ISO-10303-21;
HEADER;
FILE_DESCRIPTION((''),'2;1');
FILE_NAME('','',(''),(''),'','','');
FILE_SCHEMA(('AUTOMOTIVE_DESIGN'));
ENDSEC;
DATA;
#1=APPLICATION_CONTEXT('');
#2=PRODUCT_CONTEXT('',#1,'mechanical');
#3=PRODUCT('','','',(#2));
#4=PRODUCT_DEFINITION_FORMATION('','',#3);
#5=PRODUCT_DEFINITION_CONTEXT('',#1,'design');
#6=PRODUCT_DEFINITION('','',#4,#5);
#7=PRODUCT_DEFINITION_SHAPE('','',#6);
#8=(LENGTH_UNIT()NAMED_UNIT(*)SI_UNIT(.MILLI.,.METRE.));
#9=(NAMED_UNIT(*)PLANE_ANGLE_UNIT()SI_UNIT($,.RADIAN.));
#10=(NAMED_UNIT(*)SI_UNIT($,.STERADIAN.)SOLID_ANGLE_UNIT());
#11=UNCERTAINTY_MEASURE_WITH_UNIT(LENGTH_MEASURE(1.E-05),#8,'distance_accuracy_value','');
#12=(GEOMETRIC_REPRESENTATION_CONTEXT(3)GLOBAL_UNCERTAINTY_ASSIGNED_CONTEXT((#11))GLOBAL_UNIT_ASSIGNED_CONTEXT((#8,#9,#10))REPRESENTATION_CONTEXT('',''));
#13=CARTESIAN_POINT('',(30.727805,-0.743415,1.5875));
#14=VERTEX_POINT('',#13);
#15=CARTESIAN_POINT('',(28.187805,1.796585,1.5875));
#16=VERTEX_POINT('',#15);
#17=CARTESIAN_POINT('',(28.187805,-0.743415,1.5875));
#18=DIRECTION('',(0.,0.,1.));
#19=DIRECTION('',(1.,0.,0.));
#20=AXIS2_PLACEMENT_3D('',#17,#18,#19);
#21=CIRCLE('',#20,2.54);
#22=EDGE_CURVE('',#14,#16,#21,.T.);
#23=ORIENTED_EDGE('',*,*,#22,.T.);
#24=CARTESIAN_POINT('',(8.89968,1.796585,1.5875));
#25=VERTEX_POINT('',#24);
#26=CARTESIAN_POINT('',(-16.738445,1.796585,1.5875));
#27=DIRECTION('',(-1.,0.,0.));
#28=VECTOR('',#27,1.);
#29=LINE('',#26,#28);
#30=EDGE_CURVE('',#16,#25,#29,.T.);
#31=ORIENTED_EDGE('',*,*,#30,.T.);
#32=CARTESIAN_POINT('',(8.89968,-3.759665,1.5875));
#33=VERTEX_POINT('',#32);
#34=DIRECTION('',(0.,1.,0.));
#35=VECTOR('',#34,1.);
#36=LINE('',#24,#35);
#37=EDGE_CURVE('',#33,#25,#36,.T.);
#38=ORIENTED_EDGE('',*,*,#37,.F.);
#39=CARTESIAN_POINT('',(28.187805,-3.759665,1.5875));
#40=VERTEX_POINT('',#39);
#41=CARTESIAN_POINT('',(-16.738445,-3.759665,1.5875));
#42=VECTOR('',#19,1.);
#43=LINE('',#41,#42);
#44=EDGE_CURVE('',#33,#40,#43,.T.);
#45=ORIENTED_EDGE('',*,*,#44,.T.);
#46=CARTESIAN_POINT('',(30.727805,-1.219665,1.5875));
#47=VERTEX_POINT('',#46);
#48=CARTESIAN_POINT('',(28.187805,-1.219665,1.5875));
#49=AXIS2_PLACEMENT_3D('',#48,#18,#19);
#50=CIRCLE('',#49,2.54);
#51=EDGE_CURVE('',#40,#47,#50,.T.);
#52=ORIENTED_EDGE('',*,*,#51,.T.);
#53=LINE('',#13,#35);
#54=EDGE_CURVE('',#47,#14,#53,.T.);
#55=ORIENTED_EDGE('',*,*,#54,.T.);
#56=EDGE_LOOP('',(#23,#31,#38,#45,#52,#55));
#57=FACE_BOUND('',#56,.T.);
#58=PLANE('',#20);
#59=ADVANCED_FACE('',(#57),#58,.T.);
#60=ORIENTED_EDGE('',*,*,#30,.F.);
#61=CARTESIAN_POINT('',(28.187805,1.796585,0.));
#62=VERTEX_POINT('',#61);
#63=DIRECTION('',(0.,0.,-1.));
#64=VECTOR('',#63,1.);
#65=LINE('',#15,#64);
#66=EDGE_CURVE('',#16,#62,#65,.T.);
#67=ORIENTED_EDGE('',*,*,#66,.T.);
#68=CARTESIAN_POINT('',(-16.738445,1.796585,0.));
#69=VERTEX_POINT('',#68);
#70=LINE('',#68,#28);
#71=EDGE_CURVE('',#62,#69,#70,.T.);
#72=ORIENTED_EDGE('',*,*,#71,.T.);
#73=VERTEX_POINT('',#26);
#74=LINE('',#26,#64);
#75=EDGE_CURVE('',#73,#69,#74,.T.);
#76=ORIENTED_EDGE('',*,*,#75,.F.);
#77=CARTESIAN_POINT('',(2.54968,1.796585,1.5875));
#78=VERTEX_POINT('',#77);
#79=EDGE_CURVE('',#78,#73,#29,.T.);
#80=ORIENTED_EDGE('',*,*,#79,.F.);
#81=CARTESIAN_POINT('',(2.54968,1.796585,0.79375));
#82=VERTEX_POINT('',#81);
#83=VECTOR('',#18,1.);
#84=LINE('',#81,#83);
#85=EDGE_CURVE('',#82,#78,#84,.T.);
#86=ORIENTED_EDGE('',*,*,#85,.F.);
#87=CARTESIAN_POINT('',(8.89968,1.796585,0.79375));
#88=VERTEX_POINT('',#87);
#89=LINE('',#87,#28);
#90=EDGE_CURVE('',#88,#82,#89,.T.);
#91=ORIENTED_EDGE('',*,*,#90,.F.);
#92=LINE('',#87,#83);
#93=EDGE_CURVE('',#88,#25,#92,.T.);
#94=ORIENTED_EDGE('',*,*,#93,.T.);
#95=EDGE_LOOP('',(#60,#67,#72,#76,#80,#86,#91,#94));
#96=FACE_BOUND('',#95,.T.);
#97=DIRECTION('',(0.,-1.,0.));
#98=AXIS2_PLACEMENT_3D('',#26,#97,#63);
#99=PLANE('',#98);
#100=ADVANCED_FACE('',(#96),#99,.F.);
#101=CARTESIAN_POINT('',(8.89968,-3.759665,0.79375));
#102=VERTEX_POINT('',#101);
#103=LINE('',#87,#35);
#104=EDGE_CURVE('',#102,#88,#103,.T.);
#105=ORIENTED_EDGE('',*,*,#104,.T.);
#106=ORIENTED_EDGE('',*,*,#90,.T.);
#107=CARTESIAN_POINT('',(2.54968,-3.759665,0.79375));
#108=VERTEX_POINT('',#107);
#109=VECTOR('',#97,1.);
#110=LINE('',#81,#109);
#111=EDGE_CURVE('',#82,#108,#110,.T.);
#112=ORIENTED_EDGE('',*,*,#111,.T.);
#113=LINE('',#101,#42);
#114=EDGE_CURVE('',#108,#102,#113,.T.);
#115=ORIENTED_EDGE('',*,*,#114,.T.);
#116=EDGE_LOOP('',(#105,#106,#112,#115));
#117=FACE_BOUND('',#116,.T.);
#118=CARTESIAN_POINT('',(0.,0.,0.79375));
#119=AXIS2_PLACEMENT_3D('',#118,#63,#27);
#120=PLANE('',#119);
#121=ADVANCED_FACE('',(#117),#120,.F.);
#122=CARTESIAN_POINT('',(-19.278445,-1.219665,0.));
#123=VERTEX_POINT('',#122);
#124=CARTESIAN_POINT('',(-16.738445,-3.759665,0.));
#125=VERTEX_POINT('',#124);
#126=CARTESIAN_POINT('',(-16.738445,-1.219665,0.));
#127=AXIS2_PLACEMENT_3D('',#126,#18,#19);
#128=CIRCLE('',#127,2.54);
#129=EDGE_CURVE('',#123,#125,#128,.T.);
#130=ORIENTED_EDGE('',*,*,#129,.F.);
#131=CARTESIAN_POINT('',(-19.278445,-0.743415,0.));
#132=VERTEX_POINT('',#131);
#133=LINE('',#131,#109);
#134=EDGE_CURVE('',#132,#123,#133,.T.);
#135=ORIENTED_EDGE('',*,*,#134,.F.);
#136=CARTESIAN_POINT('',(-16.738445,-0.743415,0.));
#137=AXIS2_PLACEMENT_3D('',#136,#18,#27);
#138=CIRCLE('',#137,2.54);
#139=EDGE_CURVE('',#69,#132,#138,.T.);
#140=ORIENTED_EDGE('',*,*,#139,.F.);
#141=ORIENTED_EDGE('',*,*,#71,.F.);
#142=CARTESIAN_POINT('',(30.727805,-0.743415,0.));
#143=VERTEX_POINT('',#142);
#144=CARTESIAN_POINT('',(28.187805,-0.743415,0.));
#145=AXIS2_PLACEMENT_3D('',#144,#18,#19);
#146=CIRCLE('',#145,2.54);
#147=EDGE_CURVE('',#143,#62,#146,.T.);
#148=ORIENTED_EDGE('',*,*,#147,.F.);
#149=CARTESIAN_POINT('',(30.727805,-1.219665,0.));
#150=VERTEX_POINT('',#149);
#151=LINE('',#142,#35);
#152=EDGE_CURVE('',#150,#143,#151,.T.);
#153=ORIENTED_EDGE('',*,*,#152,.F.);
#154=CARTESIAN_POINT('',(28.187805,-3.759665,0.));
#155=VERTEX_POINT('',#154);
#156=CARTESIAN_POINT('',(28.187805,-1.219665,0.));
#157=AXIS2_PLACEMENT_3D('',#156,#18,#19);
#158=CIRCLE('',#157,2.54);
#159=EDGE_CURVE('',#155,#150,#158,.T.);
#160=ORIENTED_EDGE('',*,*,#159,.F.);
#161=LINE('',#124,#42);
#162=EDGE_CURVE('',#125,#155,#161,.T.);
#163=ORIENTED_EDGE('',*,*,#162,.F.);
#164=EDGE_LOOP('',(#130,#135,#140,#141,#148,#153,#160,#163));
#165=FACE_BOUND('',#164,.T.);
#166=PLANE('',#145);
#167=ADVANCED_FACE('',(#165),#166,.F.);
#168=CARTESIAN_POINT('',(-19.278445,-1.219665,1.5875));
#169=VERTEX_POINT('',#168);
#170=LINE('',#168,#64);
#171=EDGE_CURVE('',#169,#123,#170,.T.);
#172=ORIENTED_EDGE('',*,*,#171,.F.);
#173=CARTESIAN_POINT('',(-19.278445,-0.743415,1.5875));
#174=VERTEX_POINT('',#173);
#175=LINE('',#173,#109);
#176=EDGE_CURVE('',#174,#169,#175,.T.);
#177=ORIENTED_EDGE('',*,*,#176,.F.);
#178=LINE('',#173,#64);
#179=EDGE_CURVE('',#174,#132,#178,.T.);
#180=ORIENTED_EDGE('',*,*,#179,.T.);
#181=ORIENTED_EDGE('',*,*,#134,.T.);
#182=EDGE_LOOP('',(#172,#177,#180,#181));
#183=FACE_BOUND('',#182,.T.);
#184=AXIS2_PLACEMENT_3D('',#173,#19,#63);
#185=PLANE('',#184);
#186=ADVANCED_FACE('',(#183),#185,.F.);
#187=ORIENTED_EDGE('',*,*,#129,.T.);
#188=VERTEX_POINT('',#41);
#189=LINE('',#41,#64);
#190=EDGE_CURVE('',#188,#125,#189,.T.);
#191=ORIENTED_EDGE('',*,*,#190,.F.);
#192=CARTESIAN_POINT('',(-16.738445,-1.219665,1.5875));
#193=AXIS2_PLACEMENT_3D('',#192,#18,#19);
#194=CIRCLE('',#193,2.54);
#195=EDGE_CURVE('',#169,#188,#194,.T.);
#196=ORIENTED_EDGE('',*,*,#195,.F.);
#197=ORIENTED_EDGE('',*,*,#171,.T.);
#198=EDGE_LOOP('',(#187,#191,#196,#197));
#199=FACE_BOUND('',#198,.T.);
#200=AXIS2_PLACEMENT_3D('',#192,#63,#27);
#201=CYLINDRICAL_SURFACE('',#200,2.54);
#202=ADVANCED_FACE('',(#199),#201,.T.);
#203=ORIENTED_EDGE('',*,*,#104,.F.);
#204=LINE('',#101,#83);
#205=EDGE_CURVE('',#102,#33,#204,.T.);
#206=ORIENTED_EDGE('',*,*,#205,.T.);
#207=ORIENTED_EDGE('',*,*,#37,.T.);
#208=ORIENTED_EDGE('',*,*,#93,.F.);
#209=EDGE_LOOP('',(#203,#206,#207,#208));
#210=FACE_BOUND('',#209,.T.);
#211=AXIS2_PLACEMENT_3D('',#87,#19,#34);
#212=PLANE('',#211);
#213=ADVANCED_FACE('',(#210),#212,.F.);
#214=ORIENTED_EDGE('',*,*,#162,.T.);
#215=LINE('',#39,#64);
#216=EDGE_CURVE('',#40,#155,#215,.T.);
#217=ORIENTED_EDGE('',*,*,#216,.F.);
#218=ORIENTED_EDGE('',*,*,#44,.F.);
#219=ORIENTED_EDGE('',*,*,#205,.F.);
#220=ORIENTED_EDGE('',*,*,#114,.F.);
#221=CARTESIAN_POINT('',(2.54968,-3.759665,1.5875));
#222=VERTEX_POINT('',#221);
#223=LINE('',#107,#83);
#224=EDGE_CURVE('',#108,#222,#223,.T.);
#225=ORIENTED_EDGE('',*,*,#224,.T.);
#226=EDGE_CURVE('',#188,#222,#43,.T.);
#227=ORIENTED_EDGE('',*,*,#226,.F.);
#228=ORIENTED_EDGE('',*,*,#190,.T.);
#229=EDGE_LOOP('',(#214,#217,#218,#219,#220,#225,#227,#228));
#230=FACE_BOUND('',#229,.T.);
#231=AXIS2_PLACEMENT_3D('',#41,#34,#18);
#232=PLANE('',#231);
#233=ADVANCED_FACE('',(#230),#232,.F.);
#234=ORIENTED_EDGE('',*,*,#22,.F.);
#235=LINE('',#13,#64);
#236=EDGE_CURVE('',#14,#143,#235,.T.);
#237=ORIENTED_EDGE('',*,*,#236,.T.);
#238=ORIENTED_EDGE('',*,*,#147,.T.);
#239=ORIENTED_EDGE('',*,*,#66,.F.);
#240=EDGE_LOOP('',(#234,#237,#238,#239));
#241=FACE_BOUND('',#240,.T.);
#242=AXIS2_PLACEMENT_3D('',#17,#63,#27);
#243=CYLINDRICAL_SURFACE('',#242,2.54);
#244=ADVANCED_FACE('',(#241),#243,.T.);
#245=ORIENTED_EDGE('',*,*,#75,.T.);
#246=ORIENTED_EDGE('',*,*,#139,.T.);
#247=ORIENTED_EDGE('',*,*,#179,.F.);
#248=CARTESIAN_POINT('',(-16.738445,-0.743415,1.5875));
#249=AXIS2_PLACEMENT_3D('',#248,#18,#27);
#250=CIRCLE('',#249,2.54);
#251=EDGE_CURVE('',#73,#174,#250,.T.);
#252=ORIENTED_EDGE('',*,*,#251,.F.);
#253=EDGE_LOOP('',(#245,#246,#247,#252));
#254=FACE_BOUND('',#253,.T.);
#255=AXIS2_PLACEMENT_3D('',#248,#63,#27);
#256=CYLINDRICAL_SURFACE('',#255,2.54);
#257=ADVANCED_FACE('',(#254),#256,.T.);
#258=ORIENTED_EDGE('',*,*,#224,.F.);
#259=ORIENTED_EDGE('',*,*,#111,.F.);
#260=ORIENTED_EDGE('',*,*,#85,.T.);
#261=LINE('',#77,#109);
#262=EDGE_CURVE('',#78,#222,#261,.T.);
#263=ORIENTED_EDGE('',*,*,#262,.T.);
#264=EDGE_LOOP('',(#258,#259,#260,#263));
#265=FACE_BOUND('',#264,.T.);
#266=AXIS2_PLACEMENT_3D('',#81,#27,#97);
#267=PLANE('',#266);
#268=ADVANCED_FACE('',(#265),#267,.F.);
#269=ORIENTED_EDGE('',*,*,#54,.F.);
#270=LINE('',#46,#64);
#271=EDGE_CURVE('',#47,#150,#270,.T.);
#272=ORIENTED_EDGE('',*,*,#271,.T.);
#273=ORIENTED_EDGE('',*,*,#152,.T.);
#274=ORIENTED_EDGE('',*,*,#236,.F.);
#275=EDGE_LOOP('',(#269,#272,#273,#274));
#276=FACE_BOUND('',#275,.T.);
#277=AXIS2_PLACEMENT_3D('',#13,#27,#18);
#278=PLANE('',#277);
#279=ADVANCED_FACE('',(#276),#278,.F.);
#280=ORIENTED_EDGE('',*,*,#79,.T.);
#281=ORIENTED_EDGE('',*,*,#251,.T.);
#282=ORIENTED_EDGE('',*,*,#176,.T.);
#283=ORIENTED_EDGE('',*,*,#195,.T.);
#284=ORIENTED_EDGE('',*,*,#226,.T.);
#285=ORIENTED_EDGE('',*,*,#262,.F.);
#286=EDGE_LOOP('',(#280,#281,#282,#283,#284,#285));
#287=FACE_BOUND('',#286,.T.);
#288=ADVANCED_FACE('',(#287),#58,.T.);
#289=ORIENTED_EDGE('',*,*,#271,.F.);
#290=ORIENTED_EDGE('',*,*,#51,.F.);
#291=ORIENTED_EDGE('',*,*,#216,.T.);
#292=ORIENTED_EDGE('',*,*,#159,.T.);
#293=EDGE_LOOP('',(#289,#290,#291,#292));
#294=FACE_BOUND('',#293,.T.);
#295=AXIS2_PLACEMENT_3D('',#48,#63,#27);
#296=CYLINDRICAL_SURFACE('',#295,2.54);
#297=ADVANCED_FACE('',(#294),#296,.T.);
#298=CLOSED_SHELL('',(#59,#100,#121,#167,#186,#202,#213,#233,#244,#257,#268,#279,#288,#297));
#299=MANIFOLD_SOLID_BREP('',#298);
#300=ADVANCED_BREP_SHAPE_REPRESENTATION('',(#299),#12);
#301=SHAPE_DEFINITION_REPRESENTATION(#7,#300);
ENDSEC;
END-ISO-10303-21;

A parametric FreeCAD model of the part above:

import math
import FreeCAD as App
import Part
import Sketcher

V = App.Vector
Q = App.Units.Quantity

doc = App.newDocument("Part")
params = doc.addObject("Spreadsheet::Sheet", "Params")
for row, (alias, value) in enumerate([
    ("sketch1_radius", "0.1 in"),
    ("pad1_length", "0.0625 in"),
    ("sketch2_width", "0.25 in"),
    ("sketch2_height", "0.21875 in"),
    ("pocket1_length", "0.03125 in"),
], start=1):
    params.set(f"A{row}", alias)
    params.set(f"B{row}", "=" + value)
    params.setAlias(f"B{row}", alias)

body = doc.addObject("PartDesign::Body", "Body")

# Sketch on XY plane
sketch1 = body.newObject("Sketcher::SketchObject", "Sketch")
sketch1.AttachmentSupport = (doc.getObject("XY_Plane"), [""])
sketch1.MapMode = "FlatFace"
sketch1.addGeometry([
    Part.LineSegment(V(28.19, 1.8, 0), V(-16.74, 1.8, 0)),  # 0
    Part.ArcOfCircle(Part.Circle(V(-16.74, -0.74, 0), V(0, 0, 1), 2.54), math.radians(90), math.radians(180)),  # 1
    Part.LineSegment(V(-19.28, -0.74, 0), V(-19.28, -1.22, 0)),  # 2
    Part.ArcOfCircle(Part.Circle(V(-16.74, -1.22, 0), V(0, 0, 1), 2.54), math.radians(-180), math.radians(-90)),  # 3
    Part.LineSegment(V(-16.74, -3.76, 0), V(28.19, -3.76, 0)),  # 4
    Part.ArcOfCircle(Part.Circle(V(28.19, -1.22, 0), V(0, 0, 1), 2.54), math.radians(-90), math.radians(0)),  # 5
    Part.LineSegment(V(30.73, -1.22, 0), V(30.73, -0.74, 0)),  # 6
    Part.ArcOfCircle(Part.Circle(V(28.19, -0.74, 0), V(0, 0, 1), 2.54), math.radians(0), math.radians(90)),  # 7
], False)
sketch1.addConstraint([
    Sketcher.Constraint("Tangent", 0, 2, 1, 1),
    Sketcher.Constraint("Tangent", 1, 2, 2, 1),
    Sketcher.Constraint("Tangent", 2, 2, 3, 1),
    Sketcher.Constraint("Tangent", 3, 2, 4, 1),
    Sketcher.Constraint("Tangent", 4, 2, 5, 1),
    Sketcher.Constraint("Tangent", 5, 2, 6, 1),
    Sketcher.Constraint("Tangent", 6, 2, 7, 1),
    Sketcher.Constraint("Tangent", 7, 2, 0, 1),
    Sketcher.Constraint("Horizontal", 0),
    Sketcher.Constraint("Vertical", 2),
    Sketcher.Constraint("Horizontal", 4),
    Sketcher.Constraint("Vertical", 6),
    Sketcher.Constraint("Equal", 1, 3),
    Sketcher.Constraint("Equal", 3, 5),
    Sketcher.Constraint("Equal", 5, 7),
    Sketcher.Constraint("Radius", 1, Q("0.1 in")),
    Sketcher.Constraint("DistanceY", 3, 2, 0, 2, Q("0.21875 in")),
    Sketcher.Constraint("DistanceX", 0, 2, 0, 1, Q("44.92625 mm")),
    Sketcher.Constraint("DistanceX", 1, 3, -1, 1, Q("16.738445 mm")),
    Sketcher.Constraint("DistanceY", 1, 3, -1, 1, Q("0.743415 mm")),
])
sketch1.setExpression("Constraints[15]", "Params.sketch1_radius")
pad1 = body.newObject("PartDesign::Pad", "Pad")
pad1.Profile = sketch1
pad1.setExpression("Length", "Params.pad1_length")

# Sketch on XY plane
sketch2 = body.newObject("Sketcher::SketchObject", "Sketch001")
sketch2.AttachmentSupport = (doc.getObject("XY_Plane"), [""])
sketch2.MapMode = "FlatFace"
sketch2.AttachmentOffset = App.Placement(V(0, 0, 0.0625 * 25.4), App.Rotation())
sketch2.addGeometry([
    Part.LineSegment(V(3, 2, 0), V(3, -4, 0)),
    Part.LineSegment(V(3, -4, 0), V(9, -4, 0)),
    Part.LineSegment(V(9, -4, 0), V(9, 2, 0)),
    Part.LineSegment(V(9, 2, 0), V(3, 2, 0)),
], False)
sketch2.addConstraint([
    Sketcher.Constraint("Coincident", 0, 2, 1, 1),
    Sketcher.Constraint("Coincident", 1, 2, 2, 1),
    Sketcher.Constraint("Coincident", 2, 2, 3, 1),
    Sketcher.Constraint("Coincident", 3, 2, 0, 1),
    Sketcher.Constraint("Vertical", 0),
    Sketcher.Constraint("Horizontal", 1),
    Sketcher.Constraint("Vertical", 2),
    Sketcher.Constraint("Horizontal", 3),
    Sketcher.Constraint("DistanceX", 1, 1, 1, 2, Q("0.25 in")),
    Sketcher.Constraint("DistanceY", 0, 2, 0, 1, Q("0.21875 in")),
    Sketcher.Constraint("DistanceX", -1, 1, 0, 2, Q("2.54968 mm")),
    Sketcher.Constraint("DistanceY", 0, 2, -1, 1, Q("3.759665 mm")),
])
sketch2.setExpression("Constraints[8]", "Params.sketch2_width")
sketch2.setExpression("Constraints[9]", "Params.sketch2_height")
pocket1 = body.newObject("PartDesign::Pocket", "Pocket")
pocket1.Profile = sketch2
pocket1.setExpression("Length", "Params.pocket1_length")

doc.recompute()
